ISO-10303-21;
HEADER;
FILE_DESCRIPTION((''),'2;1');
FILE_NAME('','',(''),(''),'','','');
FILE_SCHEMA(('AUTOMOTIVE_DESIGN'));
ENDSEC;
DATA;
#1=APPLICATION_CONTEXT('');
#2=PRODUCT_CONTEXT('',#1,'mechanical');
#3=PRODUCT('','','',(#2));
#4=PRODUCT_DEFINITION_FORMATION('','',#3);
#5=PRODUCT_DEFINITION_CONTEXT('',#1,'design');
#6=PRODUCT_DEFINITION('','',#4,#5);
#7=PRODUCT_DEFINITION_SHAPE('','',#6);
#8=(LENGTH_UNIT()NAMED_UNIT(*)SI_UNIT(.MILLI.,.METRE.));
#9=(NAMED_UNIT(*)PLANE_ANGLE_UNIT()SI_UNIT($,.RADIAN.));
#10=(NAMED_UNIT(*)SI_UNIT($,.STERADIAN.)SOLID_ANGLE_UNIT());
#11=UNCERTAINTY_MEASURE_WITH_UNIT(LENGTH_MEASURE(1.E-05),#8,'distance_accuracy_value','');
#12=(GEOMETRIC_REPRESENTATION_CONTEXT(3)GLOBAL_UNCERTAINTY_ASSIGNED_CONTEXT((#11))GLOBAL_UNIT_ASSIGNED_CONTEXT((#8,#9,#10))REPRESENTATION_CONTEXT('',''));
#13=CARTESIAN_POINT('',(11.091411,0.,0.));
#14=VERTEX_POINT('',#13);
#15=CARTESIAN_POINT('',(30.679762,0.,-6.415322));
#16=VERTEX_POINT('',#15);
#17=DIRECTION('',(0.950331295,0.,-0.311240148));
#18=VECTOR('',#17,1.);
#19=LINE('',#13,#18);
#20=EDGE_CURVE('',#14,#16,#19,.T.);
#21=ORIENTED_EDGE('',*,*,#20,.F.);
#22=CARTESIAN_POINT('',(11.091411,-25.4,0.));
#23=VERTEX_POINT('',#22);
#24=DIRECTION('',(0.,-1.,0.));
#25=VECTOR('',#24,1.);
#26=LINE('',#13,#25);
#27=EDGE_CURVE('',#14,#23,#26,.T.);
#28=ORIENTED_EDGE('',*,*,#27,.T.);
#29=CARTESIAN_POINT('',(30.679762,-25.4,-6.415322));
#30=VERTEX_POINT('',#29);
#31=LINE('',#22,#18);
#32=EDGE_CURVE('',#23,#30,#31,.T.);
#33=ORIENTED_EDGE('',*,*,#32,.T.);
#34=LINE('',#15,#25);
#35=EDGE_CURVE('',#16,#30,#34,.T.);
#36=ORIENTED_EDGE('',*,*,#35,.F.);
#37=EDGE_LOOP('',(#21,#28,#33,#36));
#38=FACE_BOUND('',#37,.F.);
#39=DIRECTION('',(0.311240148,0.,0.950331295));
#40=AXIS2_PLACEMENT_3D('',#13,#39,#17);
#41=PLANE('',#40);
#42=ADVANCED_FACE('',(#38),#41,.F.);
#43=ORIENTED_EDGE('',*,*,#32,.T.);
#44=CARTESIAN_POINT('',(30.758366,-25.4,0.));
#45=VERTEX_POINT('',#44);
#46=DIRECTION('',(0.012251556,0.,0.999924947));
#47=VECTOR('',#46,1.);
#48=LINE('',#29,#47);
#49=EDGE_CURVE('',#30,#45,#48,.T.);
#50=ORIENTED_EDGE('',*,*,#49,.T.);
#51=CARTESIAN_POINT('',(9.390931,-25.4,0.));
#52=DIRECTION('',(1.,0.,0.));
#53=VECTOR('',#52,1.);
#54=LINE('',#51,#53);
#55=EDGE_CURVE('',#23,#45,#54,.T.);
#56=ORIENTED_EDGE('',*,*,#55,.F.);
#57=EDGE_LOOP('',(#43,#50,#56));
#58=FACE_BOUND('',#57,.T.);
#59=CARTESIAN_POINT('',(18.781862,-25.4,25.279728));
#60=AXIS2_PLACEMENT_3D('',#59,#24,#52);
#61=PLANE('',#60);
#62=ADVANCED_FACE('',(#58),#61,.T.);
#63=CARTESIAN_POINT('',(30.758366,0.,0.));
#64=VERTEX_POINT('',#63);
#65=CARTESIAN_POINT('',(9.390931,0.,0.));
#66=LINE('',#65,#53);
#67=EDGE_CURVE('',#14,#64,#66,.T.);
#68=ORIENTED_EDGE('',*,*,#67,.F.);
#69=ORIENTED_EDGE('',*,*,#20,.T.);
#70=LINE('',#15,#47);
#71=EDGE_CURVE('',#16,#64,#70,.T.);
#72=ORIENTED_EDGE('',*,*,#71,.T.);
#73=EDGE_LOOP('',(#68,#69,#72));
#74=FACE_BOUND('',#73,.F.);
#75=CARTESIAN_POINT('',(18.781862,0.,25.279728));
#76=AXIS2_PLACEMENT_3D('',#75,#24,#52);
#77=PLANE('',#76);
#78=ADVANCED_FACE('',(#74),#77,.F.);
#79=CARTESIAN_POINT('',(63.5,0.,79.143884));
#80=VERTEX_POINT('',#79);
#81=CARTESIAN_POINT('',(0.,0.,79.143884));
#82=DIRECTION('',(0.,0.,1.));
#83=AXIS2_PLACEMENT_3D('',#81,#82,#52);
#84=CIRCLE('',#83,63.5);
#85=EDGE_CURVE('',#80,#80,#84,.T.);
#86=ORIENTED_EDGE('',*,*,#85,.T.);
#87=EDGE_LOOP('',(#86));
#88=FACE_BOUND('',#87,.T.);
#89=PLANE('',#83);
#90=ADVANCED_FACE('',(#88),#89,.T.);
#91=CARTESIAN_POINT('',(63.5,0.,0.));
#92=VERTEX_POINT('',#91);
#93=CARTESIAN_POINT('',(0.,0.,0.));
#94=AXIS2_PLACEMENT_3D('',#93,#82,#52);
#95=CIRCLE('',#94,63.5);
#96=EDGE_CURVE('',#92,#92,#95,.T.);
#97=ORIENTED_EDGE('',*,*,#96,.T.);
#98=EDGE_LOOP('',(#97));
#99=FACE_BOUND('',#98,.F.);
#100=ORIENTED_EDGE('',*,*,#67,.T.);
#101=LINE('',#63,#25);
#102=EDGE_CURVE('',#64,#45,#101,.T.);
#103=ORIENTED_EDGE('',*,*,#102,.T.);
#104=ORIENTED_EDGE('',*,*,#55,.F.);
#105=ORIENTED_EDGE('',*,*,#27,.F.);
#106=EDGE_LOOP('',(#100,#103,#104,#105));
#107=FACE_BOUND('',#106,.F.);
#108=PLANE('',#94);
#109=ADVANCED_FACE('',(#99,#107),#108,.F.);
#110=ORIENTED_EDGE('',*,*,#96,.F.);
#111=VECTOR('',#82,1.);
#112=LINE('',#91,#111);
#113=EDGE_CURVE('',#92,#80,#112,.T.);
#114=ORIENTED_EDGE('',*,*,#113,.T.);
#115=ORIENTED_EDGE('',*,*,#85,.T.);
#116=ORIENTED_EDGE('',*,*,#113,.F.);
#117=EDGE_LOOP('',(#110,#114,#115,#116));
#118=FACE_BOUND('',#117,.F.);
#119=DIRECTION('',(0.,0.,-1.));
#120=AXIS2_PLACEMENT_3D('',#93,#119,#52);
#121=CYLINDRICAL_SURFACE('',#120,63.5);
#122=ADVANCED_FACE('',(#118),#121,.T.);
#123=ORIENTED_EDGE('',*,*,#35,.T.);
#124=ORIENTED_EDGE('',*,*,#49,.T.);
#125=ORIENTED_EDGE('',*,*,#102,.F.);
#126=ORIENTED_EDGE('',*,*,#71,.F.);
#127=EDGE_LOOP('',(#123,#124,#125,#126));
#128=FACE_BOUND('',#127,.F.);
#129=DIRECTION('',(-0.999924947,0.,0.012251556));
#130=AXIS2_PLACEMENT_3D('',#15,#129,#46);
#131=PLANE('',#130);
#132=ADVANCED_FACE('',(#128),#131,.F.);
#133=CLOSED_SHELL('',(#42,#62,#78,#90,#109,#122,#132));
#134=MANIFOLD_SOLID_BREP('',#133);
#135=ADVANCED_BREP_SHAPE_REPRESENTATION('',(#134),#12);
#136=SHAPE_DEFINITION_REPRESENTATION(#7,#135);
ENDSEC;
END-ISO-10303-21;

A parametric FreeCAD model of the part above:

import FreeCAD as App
import Part
import Sketcher

V = App.Vector
Q = App.Units.Quantity

doc = App.newDocument("Part")
body = doc.addObject("PartDesign::Body", "Body")

# Sketch on XY plane
sketch1 = body.newObject("Sketcher::SketchObject", "Sketch")
sketch1.AttachmentSupport = (doc.getObject("XY_Plane"), [""])
sketch1.MapMode = "FlatFace"
sketch1.addGeometry(Part.Circle(V(0, 0, 0), V(0, 0, 1), 64), False)
sketch1.addConstraint([
    Sketcher.Constraint("Coincident", 0, 3, -1, 1),
    Sketcher.Constraint("Diameter", 0, Q("5 in")),
])
pad1 = body.newObject("PartDesign::Pad", "Pad")
pad1.Profile = sketch1
pad1.Length = 79.143884

# Sketch on XZ plane
sketch2 = body.newObject("Sketcher::SketchObject", "Sketch001")
sketch2.AttachmentSupport = (doc.getObject("XZ_Plane"), [""])
sketch2.MapMode = "FlatFace"
sketch2.addGeometry([
    Part.LineSegment(V(31, 52, 0), V(0, 49, 0)),
    Part.LineSegment(V(0, 49, 0), V(11, 0, 0)),
    Part.LineSegment(V(11, 0, 0), V(31, -6, 0)),
    Part.LineSegment(V(31, -6, 0), V(31, 52, 0)),
], False)
sketch2.addConstraint([
    Sketcher.Constraint("Coincident", 0, 2, 1, 1),
    Sketcher.Constraint("Coincident", 1, 2, 2, 1),
    Sketcher.Constraint("Coincident", 2, 2, 3, 1),
    Sketcher.Constraint("Coincident", 3, 2, 0, 1),
    Sketcher.Constraint("PointOnObject", 0, 2, -2),
    Sketcher.Constraint("PointOnObject", 1, 2, -1),
    Sketcher.Constraint("Distance", 1, Q("49.8376 mm")),
    Sketcher.Constraint("Distance", 0, Q("31.558839 mm")),
    Sketcher.Constraint("Distance", 2, Q("20.612129 mm")),
    Sketcher.Constraint("Distance", 3, Q("58.236112 mm")),
    Sketcher.Constraint("DistanceX", -1, 1, 1, 2, Q("11.091411 mm")),
    Sketcher.Constraint("DistanceX", -1, 1, 2, 2, Q("30.679762 mm")),
])
pad2 = body.newObject("PartDesign::Pad", "Pad001")
pad2.Profile = sketch2
pad2.Length = Q("1 in")

doc.recompute()
